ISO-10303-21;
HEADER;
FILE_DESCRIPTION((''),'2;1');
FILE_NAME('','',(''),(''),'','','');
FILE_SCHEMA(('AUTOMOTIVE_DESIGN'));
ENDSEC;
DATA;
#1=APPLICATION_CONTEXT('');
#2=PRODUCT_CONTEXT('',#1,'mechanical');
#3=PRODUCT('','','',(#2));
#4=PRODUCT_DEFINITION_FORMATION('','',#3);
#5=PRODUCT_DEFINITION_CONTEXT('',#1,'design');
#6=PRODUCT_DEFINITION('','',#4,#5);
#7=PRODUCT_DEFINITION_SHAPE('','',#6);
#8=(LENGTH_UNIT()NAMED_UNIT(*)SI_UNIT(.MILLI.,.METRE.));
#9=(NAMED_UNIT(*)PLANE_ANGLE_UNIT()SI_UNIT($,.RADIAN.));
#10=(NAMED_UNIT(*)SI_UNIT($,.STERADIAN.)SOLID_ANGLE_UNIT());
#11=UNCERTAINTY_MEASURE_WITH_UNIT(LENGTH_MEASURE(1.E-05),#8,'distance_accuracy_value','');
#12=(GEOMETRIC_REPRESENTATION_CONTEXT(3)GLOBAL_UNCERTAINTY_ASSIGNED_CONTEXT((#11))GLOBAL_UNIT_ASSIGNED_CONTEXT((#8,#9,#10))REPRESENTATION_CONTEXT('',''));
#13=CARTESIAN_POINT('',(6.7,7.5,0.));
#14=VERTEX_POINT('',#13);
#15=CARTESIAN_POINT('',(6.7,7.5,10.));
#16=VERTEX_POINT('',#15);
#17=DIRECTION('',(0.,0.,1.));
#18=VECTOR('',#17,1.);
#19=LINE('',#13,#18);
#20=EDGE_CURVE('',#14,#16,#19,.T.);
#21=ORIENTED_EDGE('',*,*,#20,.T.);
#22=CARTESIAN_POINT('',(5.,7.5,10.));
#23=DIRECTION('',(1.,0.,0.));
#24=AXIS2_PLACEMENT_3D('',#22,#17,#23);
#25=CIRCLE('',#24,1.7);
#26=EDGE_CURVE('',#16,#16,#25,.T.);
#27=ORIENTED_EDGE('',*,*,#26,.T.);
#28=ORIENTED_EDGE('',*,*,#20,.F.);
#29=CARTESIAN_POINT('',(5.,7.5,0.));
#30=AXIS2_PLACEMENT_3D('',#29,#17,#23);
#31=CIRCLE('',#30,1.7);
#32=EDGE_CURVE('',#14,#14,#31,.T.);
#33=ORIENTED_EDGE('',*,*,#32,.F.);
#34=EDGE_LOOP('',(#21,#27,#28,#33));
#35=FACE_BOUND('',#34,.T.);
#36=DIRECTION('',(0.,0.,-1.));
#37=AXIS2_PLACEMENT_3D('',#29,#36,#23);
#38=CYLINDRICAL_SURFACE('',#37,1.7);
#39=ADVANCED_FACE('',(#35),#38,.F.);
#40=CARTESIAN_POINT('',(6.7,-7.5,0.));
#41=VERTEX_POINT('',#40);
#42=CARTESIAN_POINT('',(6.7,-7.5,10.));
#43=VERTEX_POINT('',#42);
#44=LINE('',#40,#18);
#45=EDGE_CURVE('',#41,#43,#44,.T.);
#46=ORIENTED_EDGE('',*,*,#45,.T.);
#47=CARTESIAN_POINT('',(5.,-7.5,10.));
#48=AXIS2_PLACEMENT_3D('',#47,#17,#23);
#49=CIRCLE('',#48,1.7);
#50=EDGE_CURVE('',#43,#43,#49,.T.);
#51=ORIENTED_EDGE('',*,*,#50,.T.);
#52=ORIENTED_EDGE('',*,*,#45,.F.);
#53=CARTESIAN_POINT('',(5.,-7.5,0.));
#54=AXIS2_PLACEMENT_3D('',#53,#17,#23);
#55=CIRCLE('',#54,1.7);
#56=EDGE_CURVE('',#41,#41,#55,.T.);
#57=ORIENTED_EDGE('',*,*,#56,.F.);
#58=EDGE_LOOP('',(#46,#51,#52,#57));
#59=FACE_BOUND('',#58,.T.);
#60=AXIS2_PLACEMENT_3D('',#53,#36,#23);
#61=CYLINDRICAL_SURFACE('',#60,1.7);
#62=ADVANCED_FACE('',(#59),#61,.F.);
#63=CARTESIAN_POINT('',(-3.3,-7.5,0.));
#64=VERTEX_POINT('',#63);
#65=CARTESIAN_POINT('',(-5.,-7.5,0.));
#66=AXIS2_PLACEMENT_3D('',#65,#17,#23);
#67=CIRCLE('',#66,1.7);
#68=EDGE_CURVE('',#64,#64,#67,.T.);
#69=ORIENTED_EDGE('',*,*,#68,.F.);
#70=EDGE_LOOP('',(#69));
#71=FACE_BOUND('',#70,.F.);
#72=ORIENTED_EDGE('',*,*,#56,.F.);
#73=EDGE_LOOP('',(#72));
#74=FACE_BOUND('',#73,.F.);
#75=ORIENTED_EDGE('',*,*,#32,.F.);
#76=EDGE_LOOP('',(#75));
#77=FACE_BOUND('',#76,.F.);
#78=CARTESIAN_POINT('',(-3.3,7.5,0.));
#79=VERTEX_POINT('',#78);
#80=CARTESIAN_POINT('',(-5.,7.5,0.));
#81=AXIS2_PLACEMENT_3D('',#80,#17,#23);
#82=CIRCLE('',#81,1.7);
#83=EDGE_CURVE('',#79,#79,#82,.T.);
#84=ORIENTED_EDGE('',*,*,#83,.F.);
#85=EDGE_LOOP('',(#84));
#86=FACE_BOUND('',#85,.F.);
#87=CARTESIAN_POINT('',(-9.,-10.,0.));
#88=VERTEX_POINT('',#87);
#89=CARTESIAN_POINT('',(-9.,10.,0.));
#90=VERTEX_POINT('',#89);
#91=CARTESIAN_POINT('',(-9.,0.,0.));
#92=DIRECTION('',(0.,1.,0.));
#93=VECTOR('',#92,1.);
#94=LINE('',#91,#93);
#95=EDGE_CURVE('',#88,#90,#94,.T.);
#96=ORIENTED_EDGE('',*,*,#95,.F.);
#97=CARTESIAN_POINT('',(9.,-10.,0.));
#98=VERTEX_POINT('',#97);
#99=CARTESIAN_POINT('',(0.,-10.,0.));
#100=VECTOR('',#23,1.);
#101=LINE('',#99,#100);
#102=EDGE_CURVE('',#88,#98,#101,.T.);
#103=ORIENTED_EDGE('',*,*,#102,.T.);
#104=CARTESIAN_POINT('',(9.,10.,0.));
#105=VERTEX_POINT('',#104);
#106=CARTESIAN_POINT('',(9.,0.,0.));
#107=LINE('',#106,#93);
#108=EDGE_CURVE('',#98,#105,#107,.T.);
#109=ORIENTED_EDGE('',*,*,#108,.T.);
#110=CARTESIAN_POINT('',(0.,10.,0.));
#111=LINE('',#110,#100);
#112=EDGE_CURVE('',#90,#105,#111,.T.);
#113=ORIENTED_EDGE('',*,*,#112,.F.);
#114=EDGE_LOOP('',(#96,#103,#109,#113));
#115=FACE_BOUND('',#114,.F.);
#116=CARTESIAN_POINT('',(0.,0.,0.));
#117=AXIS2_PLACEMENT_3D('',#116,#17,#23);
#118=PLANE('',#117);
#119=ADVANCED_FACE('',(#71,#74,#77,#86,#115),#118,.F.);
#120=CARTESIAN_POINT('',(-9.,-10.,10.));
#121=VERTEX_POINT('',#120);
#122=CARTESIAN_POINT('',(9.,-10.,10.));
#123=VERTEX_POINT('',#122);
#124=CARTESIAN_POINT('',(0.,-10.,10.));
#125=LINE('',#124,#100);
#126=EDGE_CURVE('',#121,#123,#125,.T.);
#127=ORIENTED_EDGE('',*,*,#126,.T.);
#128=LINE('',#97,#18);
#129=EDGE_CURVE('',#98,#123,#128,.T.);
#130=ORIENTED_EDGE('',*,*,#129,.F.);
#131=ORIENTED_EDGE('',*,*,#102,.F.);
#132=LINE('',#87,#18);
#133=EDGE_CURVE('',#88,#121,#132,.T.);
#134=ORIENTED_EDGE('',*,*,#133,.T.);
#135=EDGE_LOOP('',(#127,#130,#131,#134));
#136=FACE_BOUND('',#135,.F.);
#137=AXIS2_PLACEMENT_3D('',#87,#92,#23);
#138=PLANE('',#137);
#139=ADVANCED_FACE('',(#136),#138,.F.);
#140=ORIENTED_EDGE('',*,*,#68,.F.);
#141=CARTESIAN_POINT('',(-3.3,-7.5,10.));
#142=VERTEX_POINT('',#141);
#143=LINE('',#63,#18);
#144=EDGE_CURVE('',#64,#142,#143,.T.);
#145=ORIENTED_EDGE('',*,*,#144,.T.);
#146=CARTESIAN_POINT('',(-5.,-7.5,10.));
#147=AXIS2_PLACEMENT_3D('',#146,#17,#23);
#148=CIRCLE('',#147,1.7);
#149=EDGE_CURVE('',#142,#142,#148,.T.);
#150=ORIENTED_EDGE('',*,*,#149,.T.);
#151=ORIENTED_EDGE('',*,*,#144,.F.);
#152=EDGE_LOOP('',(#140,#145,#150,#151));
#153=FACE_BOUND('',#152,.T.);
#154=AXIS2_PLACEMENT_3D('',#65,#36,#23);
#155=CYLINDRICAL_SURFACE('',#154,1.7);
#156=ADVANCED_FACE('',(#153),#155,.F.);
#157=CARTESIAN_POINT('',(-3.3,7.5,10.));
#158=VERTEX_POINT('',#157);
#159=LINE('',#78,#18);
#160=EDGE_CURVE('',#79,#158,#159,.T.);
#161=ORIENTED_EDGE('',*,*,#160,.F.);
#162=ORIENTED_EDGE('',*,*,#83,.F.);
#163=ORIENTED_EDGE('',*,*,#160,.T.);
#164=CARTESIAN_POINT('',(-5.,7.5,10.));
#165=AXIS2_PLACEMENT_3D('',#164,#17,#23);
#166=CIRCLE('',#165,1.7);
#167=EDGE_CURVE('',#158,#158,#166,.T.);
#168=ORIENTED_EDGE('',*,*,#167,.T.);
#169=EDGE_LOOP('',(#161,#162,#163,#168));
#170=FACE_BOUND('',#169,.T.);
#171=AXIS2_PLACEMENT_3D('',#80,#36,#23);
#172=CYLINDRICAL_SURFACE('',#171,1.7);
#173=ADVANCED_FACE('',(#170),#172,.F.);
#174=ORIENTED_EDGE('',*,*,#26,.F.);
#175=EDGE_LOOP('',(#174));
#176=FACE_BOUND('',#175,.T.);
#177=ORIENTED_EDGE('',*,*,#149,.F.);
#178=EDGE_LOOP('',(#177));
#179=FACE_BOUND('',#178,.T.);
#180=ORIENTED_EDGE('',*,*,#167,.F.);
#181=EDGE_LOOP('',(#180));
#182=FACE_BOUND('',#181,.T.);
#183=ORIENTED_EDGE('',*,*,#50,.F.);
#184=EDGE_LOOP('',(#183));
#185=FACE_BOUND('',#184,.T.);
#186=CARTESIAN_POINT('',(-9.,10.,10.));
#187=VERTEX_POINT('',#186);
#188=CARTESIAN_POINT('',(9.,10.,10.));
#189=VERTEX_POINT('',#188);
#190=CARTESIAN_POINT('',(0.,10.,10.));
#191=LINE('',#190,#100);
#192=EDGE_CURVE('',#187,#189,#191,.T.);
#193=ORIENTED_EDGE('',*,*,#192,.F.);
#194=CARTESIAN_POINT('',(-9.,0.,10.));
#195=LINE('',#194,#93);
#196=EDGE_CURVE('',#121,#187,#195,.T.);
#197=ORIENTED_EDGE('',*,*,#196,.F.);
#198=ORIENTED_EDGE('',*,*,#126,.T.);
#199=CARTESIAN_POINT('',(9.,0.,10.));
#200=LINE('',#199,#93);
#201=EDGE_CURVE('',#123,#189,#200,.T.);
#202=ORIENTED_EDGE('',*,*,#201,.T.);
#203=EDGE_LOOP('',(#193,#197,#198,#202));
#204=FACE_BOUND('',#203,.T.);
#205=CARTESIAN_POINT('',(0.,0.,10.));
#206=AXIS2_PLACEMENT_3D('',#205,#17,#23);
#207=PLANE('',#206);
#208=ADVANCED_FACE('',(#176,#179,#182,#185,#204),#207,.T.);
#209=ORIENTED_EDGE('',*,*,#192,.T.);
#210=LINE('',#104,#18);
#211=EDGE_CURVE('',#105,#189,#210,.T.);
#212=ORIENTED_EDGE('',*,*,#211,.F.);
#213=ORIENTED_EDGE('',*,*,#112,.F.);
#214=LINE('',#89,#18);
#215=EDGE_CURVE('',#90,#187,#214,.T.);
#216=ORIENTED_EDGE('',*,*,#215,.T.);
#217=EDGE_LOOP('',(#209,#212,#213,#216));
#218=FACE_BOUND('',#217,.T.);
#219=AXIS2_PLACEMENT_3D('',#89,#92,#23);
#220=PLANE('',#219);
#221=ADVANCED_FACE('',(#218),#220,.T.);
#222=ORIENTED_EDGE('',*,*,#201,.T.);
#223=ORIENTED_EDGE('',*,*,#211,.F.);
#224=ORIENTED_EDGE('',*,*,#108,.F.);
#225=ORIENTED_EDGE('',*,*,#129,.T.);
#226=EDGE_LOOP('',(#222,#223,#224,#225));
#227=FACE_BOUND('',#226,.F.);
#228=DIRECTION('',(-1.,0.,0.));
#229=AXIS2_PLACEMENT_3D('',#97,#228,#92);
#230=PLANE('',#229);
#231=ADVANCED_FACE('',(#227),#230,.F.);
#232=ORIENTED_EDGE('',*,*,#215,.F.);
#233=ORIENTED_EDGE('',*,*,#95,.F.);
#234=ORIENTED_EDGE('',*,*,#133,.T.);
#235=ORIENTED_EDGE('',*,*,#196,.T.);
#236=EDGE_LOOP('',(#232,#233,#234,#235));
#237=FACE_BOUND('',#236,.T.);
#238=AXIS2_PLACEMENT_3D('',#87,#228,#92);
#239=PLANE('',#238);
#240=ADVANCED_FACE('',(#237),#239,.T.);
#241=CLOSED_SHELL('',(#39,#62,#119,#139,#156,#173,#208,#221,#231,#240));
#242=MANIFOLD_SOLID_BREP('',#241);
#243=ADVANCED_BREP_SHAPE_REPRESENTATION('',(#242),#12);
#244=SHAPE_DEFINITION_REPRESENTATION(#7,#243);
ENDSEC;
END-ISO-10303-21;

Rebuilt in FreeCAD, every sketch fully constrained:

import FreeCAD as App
import Part
import Sketcher

V = App.Vector

doc = App.newDocument("Part")
body = doc.addObject("PartDesign::Body", "Body")

sketch1 = body.newObject("Sketcher::SketchObject", "Sketch")
sketch1.AttachmentSupport = (doc.getObject("XY_Plane"), [""])
sketch1.MapMode = "FlatFace"
sketch1.addGeometry(Part.LineSegment(V(-9, 10, 0), V(-9, -10, 0)), False)
sketch1.addGeometry(Part.LineSegment(V(-9, -10, 0), V(9, -10, 0)), False)
sketch1.addGeometry(Part.LineSegment(V(9, -10, 0), V(9, 10, 0)), False)
sketch1.addGeometry(Part.LineSegment(V(9, 10, 0), V(-9, 10, 0)), False)
sketch1.addGeometry(Part.Circle(V(-5, -7.5, 0), V(0, 0, 1), 1.7), False)
sketch1.addGeometry(Part.Circle(V(5, -7.5, 0), V(0, 0, 1), 1.7), False)
sketch1.addGeometry(Part.Circle(V(-5, 7.5, 0), V(0, 0, 1), 1.7), False)
sketch1.addGeometry(Part.Circle(V(5, 7.5, 0), V(0, 0, 1), 1.7), False)
sketch1.addConstraint(Sketcher.Constraint("Coincident", 0, 2, 1, 1))
sketch1.addConstraint(Sketcher.Constraint("Coincident", 1, 2, 2, 1))
sketch1.addConstraint(Sketcher.Constraint("Coincident", 2, 2, 3, 1))
sketch1.addConstraint(Sketcher.Constraint("Coincident", 3, 2, 0, 1))
sketch1.addConstraint(Sketcher.Constraint("Vertical", 0))
sketch1.addConstraint(Sketcher.Constraint("Horizontal", 1))
sketch1.addConstraint(Sketcher.Constraint("Vertical", 2))
sketch1.addConstraint(Sketcher.Constraint("Horizontal", 3))
sketch1.addConstraint(Sketcher.Constraint("Equal", 4, 5))
sketch1.addConstraint(Sketcher.Constraint("Equal", 5, 6))
sketch1.addConstraint(Sketcher.Constraint("Equal", 6, 7))
sketch1.addConstraint(Sketcher.Constraint("Symmetric", 5, 3, 6, 3, -1, 1))
sketch1.addConstraint(Sketcher.Constraint("Symmetric", 4, 3, 7, 3, -1, 1))
sketch1.addConstraint(Sketcher.Constraint("Symmetric", 0, 2, 2, 2, -1, 1))
sketch1.addConstraint(Sketcher.Constraint("Symmetric", 4, 3, 5, 3, -2))
sketch1.addConstraint(Sketcher.Constraint("Diameter", 4, 3.4))
sketch1.addConstraint(Sketcher.Constraint("DistanceX", 1, 1, 1, 2, 18.0))
sketch1.addConstraint(Sketcher.Constraint("DistanceY", 0, 2, 0, 1, 20.0))
sketch1.addConstraint(Sketcher.Constraint("DistanceX", 4, 3, -1, 1, 5.0))
sketch1.addConstraint(Sketcher.Constraint("DistanceY", 4, 3, 6, 3, 15.0))
pad1 = body.newObject("PartDesign::Pad", "Pad")
pad1.Profile = sketch1
pad1.Length = 10

doc.recompute()
